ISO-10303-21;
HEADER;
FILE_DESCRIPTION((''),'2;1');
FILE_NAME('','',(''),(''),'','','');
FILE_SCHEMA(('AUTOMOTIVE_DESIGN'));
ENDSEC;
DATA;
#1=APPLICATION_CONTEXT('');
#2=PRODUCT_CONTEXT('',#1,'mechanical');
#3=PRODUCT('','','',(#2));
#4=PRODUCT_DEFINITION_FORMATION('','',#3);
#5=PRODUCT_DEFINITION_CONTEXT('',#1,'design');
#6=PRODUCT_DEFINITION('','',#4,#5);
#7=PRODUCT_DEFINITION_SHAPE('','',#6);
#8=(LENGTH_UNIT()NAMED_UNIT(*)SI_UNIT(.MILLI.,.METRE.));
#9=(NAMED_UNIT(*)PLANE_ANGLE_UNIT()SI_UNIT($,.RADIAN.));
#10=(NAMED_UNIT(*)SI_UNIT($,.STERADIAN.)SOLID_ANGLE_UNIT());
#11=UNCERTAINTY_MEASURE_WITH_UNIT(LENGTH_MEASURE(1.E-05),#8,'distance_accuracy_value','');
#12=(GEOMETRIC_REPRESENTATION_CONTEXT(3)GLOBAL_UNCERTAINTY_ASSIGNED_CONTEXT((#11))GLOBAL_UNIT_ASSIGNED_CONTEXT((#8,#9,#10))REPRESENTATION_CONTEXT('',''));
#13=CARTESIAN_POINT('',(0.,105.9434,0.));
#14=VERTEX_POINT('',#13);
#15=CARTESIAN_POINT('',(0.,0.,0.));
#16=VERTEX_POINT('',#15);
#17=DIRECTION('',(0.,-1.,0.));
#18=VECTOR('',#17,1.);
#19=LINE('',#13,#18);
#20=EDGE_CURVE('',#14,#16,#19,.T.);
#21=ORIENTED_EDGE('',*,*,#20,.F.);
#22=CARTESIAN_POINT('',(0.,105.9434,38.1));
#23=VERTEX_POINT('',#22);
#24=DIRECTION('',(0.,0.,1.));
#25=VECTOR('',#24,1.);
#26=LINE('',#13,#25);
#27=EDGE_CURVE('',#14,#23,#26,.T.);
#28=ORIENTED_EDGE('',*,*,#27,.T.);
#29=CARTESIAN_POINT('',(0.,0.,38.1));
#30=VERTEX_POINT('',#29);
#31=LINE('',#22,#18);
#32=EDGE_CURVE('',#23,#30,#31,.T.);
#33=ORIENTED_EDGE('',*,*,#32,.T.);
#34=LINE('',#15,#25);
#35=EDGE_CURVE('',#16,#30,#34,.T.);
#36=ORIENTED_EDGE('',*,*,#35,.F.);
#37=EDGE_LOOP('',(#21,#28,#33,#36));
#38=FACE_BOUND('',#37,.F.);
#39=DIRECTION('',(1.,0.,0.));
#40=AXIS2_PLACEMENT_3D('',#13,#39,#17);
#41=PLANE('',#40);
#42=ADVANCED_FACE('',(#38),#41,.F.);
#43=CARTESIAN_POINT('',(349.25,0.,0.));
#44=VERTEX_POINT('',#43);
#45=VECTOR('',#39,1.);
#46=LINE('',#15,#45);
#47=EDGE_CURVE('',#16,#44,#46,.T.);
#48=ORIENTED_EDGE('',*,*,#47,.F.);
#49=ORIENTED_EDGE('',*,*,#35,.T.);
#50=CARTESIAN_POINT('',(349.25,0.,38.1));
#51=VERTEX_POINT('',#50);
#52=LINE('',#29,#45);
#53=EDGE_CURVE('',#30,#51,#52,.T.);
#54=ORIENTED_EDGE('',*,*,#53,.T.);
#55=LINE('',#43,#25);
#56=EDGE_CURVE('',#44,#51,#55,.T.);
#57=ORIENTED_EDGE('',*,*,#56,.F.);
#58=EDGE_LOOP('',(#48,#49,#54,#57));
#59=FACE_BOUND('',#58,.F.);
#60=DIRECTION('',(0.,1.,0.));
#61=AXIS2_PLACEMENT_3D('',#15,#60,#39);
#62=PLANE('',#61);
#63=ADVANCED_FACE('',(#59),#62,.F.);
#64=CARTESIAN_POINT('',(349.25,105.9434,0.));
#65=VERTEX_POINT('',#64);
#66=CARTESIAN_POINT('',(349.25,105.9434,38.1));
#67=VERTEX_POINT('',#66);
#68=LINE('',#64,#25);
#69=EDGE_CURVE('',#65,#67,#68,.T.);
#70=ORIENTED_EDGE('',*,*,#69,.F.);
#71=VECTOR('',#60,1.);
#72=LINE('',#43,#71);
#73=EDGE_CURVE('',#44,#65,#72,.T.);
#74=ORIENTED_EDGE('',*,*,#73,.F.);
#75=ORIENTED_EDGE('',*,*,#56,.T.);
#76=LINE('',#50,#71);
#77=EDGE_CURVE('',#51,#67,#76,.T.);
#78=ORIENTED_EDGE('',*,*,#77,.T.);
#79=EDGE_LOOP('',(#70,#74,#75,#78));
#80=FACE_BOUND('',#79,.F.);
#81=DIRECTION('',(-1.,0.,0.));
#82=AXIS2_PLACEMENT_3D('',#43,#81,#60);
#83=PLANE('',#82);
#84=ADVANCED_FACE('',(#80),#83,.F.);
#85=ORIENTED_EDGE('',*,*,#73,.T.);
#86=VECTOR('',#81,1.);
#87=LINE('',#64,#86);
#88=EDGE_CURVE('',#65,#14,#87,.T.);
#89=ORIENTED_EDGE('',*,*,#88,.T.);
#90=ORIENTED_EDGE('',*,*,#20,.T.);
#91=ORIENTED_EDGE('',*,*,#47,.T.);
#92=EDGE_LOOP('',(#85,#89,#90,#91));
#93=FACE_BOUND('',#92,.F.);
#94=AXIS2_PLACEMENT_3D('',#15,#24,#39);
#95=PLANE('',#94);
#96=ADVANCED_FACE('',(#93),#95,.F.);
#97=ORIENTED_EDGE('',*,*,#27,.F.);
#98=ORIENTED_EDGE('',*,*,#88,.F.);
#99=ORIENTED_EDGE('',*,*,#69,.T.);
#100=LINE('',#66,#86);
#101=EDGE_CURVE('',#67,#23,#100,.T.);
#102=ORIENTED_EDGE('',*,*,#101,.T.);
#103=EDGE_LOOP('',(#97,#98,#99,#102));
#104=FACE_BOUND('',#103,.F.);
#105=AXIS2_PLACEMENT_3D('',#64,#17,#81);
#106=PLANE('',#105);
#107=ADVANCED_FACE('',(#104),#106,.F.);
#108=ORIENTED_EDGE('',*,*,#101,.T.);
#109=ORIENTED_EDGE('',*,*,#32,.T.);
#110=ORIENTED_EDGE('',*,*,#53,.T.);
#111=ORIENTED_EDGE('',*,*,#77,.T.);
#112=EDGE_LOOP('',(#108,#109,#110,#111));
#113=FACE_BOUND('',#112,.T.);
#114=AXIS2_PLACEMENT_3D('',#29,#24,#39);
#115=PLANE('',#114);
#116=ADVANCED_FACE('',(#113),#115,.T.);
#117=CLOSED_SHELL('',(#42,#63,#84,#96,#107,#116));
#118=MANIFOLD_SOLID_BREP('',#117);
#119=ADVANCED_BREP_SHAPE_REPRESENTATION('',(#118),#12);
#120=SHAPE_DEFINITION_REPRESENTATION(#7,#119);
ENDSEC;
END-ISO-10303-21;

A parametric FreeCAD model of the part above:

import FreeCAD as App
import Part
import Sketcher
Q = App.Units.Quantity


def add_polygon(sketch, points):
    """Adds a closed chain of lines whose ends are joined by coincident constraints."""
    first, n = sketch.GeometryCount, len(points)
    for a, b in zip(points, points[1:] + points[:1]):
        sketch.addGeometry(Part.LineSegment(App.Vector(*a, 0), App.Vector(*b, 0)), False)
    for i in range(n):
        sketch.addConstraint(Sketcher.Constraint("Coincident", first + i, 2, first + (i + 1) % n, 1))

doc = App.newDocument("Part")
body = doc.addObject("PartDesign::Body", "Body")

# Sketch on XY plane
sketch1 = doc.addObject("Sketcher::SketchObject", "Sketch")
body.addObject(sketch1)
sketch1.AttachmentSupport = (doc.XY_Plane, [""])
sketch1.MapMode = "FlatFace"
add_polygon(sketch1, [(0, 105.9434), (0, 0), (349.25, 0), (349.25, 105.9434)])  # lines 0-3
sketch1.addConstraint(Sketcher.Constraint("Vertical", 0))
sketch1.addConstraint(Sketcher.Constraint("Horizontal", 1))
sketch1.addConstraint(Sketcher.Constraint("Vertical", 2))
sketch1.addConstraint(Sketcher.Constraint("Horizontal", 3))
sketch1.addConstraint(Sketcher.Constraint("Coincident", 0, 2, -1, 1))
sketch1.addConstraint(Sketcher.Constraint("DistanceX", 1, 1, 1, 2, Q("13.75 in")))
sketch1.addConstraint(Sketcher.Constraint("DistanceY", 0, 2, 0, 1, Q("4.171 in")))
pad1 = doc.addObject("PartDesign::Pad", "Pad")
body.addObject(pad1)
pad1.Profile = sketch1
pad1.Length = Q("1.5 in")

doc.recompute()
